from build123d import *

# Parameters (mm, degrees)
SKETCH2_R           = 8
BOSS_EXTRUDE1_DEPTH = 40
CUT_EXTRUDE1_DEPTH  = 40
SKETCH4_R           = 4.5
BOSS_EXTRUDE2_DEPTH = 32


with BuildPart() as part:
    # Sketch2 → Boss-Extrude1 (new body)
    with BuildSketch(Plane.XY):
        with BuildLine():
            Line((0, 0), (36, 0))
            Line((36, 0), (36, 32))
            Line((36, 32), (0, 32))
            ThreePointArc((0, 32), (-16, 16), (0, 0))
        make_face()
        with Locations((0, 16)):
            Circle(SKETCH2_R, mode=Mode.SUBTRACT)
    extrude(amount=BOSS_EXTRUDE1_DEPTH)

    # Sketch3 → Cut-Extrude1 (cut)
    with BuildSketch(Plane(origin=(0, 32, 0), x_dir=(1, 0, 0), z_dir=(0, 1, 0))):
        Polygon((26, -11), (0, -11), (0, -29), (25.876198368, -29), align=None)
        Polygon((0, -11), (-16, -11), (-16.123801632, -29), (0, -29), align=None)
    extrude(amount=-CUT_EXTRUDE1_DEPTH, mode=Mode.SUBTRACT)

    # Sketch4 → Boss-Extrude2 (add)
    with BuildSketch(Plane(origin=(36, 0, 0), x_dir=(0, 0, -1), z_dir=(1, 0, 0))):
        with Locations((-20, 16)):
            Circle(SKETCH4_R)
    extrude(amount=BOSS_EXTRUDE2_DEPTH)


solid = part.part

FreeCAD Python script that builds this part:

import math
import FreeCAD as App
import Part
import Sketcher
from FreeCAD import Vector
Q = App.Units.Quantity


def add_polygon(sketch, points):
    """Adds a closed chain of lines whose ends are joined by coincident constraints."""
    first, n = sketch.GeometryCount, len(points)
    for a, b in zip(points, points[1:] + points[:1]):
        sketch.addGeometry(Part.LineSegment(App.Vector(*a, 0), App.Vector(*b, 0)), False)
    for i in range(n):
        sketch.addConstraint(Sketcher.Constraint("Coincident", first + i, 2, first + (i + 1) % n, 1))

doc = App.newDocument("Part")
body = doc.addObject("PartDesign::Body", "Body")

sketch1 = body.newObject("Sketcher::SketchObject", "Sketch")
sketch1.AttachmentSupport = (doc.getObject("XY_Plane"), [""])
sketch1.MapMode = "FlatFace"
sketch1.addGeometry([
    Part.LineSegment(Vector(0, 0, 0), Vector(36, 0, 0)),
    Part.LineSegment(Vector(36, 0, 0), Vector(36, 32, 0)),
    Part.LineSegment(Vector(36, 32, 0), Vector(0, 32, 0)),
    Part.ArcOfCircle(Part.Circle(Vector(0, 16, 0), Vector(0, 0, 1), 16), math.radians(90), math.radians(270)),
    Part.Circle(Vector(0, 16, 0), Vector(0, 0, 1), 8),
], False)
sketch1.addConstraint([
    Sketcher.Constraint("Coincident", 0, 2, 1, 1),
    Sketcher.Constraint("Coincident", 1, 2, 2, 1),
    Sketcher.Constraint("Tangent", 2, 2, 3, 1),
    Sketcher.Constraint("Tangent", 3, 2, 0, 1),
    Sketcher.Constraint("Horizontal", 0),
    Sketcher.Constraint("Vertical", 1),
    Sketcher.Constraint("Horizontal", 2),
    Sketcher.Constraint("Coincident", 3, 2, -1, 1),
    Sketcher.Constraint("Coincident", 4, 3, 3, 3),
    Sketcher.Constraint("Diameter", 4, Q("16 mm")),
    Sketcher.Constraint("Radius", 3, Q("16 mm")),
    Sketcher.Constraint("DistanceX", 0, 1, 0, 2, Q("36 mm")),
])
pad1 = body.newObject("PartDesign::Pad", "Pad")
pad1.Profile = sketch1
pad1.Length = 40

sketch2 = body.newObject("Sketcher::SketchObject", "Sketch001")
sketch2.AttachmentSupport = (doc.getObject("XZ_Plane"), [""])
sketch2.MapMode = "FlatFace"
sketch2.AttachmentOffset = App.Placement(Vector(0, 0, -32), App.Rotation())
add_polygon(sketch2, [(26, 11), (-16, 11), (-16, 29), (26, 29)])
sketch2.addConstraint([
    Sketcher.Constraint("Horizontal", 0),
    Sketcher.Constraint("Horizontal", 2),
    Sketcher.Constraint("Parallel", 1, 3),
    Sketcher.Constraint("DistanceX", 0, 2, 0, 1, Q("42 mm")),
    Sketcher.Constraint("DistanceX", 0, 2, -1, 1, Q("16 mm")),
    Sketcher.Constraint("DistanceY", -1, 1, 0, 2, Q("11 mm")),
    Sketcher.Constraint("DistanceY", -1, 1, 1, 2, Q("29 mm")),
    Sketcher.Constraint("DistanceX", 1, 2, -1, 1, Q("16.123802 mm")),
])
pocket1 = body.newObject("PartDesign::Pocket", "Pocket")
pocket1.Profile = sketch2
pocket1.Length = 40
pocket1.Reversed = True

sketch3 = body.newObject("Sketcher::SketchObject", "Sketch002")
sketch3.AttachmentSupport = (doc.getObject("YZ_Plane"), [""])
sketch3.MapMode = "FlatFace"
sketch3.AttachmentOffset = App.Placement(Vector(0, 0, 36), App.Rotation())
sketch3.addGeometry(Part.Circle(Vector(16, 20, 0), Vector(0, 0, 1), 4.5), False)
sketch3.addConstraint([
    Sketcher.Constraint("Diameter", 0, Q("9 mm")),
    Sketcher.Constraint("DistanceX", -1, 1, 0, 3, Q("16 mm")),
    Sketcher.Constraint("DistanceY", -1, 1, 0, 3, Q("20 mm")),
])
pad2 = body.newObject("PartDesign::Pad", "Pad001")
pad2.Profile = sketch3
pad2.Length = 32

doc.recompute()
